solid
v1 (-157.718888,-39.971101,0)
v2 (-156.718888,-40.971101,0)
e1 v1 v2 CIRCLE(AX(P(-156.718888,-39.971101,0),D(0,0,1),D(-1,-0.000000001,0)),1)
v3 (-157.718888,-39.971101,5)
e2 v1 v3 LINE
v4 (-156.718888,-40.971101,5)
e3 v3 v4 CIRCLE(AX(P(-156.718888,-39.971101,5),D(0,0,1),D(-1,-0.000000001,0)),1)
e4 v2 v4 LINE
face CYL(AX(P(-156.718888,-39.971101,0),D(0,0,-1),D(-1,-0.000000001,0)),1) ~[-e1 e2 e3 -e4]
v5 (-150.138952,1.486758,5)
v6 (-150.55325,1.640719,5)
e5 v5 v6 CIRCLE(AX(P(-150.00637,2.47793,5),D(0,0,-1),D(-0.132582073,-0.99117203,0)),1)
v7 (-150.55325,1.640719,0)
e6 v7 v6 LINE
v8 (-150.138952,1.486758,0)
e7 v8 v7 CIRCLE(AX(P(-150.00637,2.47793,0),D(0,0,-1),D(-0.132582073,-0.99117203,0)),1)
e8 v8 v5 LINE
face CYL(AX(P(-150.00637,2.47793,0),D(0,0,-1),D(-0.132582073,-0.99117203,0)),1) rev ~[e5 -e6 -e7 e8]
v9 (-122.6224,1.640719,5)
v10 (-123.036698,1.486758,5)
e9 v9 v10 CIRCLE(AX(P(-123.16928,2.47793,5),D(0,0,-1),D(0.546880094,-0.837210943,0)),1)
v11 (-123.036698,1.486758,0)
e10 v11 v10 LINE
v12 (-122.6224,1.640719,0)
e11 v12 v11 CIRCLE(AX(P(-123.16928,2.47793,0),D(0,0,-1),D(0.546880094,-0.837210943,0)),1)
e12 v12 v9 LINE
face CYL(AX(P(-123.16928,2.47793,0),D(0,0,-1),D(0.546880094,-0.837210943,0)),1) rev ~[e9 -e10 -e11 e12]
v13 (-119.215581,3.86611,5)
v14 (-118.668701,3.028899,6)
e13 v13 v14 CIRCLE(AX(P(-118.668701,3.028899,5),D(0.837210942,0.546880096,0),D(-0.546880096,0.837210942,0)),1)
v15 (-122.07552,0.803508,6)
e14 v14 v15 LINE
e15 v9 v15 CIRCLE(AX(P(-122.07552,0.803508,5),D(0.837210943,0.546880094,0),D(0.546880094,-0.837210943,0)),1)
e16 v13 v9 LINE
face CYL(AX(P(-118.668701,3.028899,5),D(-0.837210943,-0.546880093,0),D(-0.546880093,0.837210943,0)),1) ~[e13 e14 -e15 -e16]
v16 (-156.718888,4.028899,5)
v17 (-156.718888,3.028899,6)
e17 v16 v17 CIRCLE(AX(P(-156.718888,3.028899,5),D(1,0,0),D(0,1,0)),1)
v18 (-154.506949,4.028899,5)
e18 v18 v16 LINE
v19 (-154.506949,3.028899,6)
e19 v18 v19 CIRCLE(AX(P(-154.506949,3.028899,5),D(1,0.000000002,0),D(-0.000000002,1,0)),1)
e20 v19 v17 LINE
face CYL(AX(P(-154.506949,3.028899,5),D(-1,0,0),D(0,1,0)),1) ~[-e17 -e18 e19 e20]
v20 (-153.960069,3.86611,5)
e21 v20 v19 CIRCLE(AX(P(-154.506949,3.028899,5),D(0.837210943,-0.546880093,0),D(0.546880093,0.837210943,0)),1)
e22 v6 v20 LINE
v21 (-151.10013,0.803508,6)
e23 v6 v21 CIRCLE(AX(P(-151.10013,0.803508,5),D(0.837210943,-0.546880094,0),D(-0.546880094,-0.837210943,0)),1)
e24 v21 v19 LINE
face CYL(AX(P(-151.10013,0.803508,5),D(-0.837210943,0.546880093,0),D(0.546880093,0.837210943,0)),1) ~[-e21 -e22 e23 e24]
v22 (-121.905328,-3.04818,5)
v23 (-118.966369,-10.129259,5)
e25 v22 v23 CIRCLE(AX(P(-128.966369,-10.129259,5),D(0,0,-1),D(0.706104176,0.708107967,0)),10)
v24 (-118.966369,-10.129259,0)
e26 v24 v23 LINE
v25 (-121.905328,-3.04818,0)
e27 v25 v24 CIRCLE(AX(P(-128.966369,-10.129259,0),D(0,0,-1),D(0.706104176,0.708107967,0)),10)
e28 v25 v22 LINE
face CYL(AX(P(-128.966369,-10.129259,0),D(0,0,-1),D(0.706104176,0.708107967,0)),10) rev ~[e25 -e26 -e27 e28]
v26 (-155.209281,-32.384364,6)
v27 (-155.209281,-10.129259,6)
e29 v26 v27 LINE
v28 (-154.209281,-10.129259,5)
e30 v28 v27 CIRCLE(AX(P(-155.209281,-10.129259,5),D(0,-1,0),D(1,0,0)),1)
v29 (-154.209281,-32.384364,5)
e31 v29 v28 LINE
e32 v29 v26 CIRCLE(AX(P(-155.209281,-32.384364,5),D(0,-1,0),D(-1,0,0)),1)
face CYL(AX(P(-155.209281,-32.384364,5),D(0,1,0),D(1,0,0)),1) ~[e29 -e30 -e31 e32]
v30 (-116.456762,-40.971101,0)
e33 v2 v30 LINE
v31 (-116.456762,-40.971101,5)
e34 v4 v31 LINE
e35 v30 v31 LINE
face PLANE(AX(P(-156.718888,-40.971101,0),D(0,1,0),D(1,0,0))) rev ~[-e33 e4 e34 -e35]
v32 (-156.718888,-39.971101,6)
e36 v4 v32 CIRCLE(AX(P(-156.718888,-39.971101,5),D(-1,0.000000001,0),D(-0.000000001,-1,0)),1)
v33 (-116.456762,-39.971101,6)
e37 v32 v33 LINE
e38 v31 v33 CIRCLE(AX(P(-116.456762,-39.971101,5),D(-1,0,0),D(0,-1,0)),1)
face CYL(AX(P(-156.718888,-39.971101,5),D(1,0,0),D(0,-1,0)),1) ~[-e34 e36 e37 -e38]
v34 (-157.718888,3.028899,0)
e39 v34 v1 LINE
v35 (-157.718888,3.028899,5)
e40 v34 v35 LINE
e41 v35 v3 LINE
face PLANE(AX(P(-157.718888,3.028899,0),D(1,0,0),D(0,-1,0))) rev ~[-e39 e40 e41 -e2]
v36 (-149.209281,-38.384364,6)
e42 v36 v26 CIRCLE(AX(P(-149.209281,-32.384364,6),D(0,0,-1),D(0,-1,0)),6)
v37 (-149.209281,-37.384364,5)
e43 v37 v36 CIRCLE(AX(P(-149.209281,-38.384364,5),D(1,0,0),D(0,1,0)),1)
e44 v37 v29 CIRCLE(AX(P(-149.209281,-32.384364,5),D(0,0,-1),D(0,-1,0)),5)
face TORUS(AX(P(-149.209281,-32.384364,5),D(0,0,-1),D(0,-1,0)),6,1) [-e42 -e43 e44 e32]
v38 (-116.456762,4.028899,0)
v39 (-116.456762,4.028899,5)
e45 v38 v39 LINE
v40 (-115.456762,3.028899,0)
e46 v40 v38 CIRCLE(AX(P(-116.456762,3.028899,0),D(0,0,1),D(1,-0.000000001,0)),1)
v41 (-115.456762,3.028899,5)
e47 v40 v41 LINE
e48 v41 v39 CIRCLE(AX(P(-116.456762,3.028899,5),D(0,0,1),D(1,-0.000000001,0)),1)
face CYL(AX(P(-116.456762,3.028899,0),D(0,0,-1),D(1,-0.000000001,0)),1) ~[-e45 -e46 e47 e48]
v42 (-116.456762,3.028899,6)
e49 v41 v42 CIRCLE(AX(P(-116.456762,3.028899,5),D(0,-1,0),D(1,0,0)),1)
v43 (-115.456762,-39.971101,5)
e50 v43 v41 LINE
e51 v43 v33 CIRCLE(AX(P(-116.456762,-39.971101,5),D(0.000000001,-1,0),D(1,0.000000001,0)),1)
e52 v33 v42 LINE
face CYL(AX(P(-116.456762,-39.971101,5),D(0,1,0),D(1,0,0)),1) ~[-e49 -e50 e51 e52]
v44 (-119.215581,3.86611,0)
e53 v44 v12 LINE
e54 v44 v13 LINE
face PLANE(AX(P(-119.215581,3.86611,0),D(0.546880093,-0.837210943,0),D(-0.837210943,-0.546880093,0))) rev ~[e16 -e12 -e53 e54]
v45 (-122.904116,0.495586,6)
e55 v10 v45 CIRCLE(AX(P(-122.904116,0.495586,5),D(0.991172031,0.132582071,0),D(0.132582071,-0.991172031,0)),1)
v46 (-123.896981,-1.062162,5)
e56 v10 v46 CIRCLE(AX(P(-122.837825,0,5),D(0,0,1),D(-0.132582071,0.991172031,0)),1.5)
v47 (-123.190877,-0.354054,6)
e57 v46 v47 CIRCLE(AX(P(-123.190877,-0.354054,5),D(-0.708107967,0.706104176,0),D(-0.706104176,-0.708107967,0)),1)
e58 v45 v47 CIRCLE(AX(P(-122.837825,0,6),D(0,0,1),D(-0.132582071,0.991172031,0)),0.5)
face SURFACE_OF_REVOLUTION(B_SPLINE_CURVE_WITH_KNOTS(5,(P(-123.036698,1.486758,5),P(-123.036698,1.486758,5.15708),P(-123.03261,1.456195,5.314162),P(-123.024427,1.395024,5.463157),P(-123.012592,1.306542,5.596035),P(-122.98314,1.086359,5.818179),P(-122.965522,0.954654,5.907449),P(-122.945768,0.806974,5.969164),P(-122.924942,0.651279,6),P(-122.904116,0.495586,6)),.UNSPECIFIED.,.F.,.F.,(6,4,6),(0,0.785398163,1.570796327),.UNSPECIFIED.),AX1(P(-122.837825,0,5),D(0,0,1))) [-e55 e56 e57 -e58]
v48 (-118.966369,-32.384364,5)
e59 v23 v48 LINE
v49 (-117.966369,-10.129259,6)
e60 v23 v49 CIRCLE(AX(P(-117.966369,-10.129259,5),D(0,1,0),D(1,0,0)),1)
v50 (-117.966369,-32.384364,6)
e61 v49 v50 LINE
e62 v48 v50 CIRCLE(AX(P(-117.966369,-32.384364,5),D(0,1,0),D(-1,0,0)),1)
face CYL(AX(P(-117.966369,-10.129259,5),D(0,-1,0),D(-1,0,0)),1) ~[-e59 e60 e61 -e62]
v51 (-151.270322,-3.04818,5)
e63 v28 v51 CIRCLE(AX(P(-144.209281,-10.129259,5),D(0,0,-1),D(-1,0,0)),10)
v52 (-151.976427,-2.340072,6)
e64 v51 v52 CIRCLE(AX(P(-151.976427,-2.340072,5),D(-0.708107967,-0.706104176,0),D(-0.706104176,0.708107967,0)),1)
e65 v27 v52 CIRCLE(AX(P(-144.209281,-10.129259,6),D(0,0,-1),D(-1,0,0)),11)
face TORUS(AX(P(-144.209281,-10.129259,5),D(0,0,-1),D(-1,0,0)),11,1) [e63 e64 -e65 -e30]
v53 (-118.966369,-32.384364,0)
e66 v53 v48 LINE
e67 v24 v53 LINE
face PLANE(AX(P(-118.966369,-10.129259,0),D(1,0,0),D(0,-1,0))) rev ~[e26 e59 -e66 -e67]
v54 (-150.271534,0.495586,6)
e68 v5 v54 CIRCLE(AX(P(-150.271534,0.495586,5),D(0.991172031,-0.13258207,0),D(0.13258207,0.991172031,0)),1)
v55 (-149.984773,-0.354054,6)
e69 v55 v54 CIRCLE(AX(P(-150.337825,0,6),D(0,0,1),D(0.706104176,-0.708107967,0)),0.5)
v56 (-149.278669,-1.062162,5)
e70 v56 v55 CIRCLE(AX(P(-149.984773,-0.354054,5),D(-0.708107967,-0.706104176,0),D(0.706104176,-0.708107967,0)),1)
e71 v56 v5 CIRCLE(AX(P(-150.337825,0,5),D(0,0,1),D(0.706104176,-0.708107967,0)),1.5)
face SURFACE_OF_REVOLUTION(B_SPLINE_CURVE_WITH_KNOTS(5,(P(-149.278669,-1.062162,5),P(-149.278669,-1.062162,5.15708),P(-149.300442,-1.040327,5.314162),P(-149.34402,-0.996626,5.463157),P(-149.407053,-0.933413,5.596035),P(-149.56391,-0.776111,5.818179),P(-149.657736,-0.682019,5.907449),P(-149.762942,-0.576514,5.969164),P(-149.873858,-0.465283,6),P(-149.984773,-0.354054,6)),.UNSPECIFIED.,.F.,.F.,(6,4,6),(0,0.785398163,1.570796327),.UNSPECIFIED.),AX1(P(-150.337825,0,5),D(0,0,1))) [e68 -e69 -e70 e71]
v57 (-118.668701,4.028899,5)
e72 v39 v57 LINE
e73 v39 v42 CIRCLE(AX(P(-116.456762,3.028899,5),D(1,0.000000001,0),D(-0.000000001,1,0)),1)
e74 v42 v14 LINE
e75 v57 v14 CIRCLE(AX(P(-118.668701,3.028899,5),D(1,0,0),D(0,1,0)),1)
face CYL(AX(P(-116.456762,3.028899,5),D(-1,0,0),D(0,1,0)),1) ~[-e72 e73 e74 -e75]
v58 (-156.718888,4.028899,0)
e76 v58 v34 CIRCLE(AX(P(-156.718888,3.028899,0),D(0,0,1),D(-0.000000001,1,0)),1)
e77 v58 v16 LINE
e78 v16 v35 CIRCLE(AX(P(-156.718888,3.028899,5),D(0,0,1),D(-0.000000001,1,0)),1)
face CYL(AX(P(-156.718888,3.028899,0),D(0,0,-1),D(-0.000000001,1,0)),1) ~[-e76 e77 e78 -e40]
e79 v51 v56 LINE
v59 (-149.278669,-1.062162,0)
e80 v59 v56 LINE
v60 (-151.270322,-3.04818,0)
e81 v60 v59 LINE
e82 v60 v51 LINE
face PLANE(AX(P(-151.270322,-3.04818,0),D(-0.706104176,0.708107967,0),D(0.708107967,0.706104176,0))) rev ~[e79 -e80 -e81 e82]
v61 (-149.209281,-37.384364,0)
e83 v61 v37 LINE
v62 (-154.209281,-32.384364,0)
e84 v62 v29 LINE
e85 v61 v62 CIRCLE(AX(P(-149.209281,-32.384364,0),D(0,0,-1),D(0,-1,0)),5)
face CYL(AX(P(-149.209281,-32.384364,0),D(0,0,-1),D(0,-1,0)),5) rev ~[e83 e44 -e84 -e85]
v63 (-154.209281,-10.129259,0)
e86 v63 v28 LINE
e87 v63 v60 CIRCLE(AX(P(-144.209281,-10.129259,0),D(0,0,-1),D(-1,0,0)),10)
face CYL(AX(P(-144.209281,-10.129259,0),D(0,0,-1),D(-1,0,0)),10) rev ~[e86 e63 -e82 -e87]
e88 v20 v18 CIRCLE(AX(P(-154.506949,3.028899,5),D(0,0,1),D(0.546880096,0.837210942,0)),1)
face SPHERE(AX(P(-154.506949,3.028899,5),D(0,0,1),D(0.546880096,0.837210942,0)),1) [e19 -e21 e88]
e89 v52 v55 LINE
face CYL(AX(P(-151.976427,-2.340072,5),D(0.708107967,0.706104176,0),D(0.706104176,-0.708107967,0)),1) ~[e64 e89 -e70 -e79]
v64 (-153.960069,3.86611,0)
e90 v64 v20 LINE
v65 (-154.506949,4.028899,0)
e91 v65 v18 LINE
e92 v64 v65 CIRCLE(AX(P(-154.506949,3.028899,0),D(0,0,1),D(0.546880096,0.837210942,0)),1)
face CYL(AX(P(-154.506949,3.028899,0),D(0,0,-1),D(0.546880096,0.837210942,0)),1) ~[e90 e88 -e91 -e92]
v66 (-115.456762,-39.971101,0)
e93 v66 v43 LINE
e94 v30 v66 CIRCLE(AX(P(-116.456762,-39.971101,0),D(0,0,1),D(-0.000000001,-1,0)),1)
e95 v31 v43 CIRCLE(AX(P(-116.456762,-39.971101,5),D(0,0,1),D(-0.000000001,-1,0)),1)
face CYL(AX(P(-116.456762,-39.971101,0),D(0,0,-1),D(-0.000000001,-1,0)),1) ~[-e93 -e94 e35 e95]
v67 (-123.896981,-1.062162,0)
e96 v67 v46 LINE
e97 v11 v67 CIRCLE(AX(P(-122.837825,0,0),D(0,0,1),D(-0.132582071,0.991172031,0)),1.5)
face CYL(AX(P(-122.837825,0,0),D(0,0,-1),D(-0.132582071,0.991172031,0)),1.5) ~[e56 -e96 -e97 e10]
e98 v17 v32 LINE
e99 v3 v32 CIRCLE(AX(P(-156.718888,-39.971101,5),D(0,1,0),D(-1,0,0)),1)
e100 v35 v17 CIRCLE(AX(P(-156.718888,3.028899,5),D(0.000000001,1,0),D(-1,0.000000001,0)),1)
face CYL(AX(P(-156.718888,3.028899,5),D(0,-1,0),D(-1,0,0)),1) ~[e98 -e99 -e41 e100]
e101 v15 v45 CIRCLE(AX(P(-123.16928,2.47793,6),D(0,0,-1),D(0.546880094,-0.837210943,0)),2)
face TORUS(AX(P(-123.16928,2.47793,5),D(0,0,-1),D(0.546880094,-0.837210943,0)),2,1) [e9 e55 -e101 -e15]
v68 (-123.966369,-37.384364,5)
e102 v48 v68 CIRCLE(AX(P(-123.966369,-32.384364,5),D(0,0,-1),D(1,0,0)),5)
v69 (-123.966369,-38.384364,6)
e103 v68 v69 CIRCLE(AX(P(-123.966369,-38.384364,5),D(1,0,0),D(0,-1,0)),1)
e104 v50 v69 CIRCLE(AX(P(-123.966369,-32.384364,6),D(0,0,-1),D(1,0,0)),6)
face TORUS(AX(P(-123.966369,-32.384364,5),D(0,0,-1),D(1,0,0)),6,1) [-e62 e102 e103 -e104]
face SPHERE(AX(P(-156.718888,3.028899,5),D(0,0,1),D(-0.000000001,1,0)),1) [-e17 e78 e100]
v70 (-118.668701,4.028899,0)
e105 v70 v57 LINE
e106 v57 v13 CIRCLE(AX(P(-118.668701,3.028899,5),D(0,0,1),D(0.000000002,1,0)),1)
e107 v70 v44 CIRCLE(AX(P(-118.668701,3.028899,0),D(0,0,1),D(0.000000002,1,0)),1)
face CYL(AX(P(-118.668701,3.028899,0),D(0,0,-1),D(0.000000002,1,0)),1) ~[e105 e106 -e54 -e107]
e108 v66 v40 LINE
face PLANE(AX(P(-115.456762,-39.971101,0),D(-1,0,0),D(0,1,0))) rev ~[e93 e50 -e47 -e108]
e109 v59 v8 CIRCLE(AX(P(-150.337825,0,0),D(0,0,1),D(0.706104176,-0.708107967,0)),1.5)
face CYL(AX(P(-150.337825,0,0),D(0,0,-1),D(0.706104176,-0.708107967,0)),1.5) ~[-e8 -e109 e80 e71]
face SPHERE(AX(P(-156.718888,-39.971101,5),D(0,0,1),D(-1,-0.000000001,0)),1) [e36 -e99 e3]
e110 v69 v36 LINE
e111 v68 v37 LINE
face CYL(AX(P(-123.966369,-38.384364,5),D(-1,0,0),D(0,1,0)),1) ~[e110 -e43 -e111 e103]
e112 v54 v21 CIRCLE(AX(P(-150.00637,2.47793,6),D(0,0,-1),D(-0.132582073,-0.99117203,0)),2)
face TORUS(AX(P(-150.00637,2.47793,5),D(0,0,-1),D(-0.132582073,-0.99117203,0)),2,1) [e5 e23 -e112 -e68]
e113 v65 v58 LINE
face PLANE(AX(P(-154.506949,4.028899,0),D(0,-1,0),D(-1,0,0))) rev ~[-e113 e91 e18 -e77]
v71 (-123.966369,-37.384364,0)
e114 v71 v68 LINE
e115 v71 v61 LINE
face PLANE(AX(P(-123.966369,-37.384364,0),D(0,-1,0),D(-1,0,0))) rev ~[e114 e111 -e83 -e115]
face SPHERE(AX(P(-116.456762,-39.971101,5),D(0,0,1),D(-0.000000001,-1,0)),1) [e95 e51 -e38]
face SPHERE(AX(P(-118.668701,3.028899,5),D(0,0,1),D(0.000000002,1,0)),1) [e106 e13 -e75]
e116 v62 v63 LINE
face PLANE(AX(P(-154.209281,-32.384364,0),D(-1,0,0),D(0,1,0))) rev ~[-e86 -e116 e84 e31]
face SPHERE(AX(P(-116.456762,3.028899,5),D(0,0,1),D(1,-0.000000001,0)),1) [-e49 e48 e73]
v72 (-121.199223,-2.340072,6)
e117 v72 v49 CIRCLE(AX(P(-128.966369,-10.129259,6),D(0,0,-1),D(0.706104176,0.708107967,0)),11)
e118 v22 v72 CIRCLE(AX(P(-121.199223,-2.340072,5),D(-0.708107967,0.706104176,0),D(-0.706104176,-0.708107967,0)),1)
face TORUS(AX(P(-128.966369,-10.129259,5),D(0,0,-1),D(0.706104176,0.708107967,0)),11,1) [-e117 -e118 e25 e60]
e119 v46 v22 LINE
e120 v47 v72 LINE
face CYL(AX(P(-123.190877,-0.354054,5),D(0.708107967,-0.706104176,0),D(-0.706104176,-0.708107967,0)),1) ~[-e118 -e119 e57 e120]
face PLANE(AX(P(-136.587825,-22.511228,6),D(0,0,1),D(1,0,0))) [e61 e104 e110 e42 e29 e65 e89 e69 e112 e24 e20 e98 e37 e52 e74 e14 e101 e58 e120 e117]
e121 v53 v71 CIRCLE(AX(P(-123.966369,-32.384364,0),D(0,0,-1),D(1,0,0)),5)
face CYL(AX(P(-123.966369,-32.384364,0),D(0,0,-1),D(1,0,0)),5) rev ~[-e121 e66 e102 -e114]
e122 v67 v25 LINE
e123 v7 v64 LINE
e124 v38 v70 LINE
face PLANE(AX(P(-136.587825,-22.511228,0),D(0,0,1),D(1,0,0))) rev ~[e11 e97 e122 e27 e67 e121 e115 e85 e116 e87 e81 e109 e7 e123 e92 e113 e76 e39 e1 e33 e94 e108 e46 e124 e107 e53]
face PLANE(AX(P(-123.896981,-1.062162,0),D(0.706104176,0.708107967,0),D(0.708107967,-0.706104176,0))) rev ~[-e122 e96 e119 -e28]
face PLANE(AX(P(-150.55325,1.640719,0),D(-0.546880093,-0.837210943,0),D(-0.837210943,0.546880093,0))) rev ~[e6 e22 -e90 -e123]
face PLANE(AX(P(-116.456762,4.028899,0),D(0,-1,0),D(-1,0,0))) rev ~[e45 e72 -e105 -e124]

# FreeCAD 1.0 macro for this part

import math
import FreeCAD as App
import Part
import Sketcher


def edges_at(feature, points):
    """Names of the edges that pass closest to the given points."""
    edges = feature.Shape.Edges
    near = lambda p: min(range(len(edges)), key=lambda i: edges[i].distToShape(Part.Vertex(*p))[0])
    return sorted({f"Edge{near(p) + 1}" for p in points})

doc = App.newDocument("Part")
params = doc.addObject("Spreadsheet::Sheet", "Params")
for row, (alias, value) in enumerate([
    ("sketch1_radius", "1 mm"),
    ("sketch1_radius2", "10 mm"),
    ("sketch1_radius3", "5 mm"),
    ("sketch1_radius4", "1.5 mm"),
    ("sketch1_height", "43 mm"),
    ("pad1_length", "6 mm"),
    ("fillet_radius", "1 mm"),
], start=1):
    params.set(f"A{row}", alias)
    params.set(f"B{row}", "=" + value)
    params.setAlias(f"B{row}", alias)

body = doc.addObject("PartDesign::Body", "Body")

sketch1 = doc.addObject("Sketcher::SketchObject", "Sketch")
body.addObject(sketch1)
sketch1.AttachmentSupport = (doc.XY_Plane, [""])
sketch1.MapMode = "FlatFace"
sketch1.addGeometry([
    Part.ArcOfCircle(Part.Circle(App.Vector(-156.718888, -39.971101, 0), App.Vector(0, 0, 1), 1), math.radians(-180), math.radians(-90)),
    Part.LineSegment(App.Vector(-156.718888, -40.971101, 0), App.Vector(-116.456762, -40.971101, 0)),
    Part.ArcOfCircle(Part.Circle(App.Vector(-116.456762, -39.971101, 0), App.Vector(0, 0, 1), 1), math.radians(-90), math.radians(0)),
    Part.LineSegment(App.Vector(-115.456762, -39.971101, 0), App.Vector(-115.456762, 3.028899, 0)),
    Part.ArcOfCircle(Part.Circle(App.Vector(-116.456762, 3.028899, 0), App.Vector(0, 0, 1), 1), math.radians(0), math.radians(90)),
    Part.LineSegment(App.Vector(-116.456762, 4.028899, 0), App.Vector(-118.668701, 4.028899, 0)),
    Part.ArcOfCircle(Part.Circle(App.Vector(-118.668701, 3.028899, 0), App.Vector(0, 0, 1), 1), math.radians(90), math.radians(123.153237)),
    Part.LineSegment(App.Vector(-119.215581, 3.86611, 0), App.Vector(-122.6224, 1.640719, 0)),
    Part.ArcOfCircle(Part.Circle(App.Vector(-123.16928, 2.47793, 0), App.Vector(0, 0, 1), 1), math.radians(-82.381174), math.radians(-56.846763)),
    Part.ArcOfCircle(Part.Circle(App.Vector(-122.837825, 0, 0), App.Vector(0, 0, 1), 1.5), math.radians(97.618826), math.radians(225.081182)),
    Part.LineSegment(App.Vector(-123.896981, -1.062162, 0), App.Vector(-121.905328, -3.04818, 0)),
    Part.ArcOfCircle(Part.Circle(App.Vector(-128.966369, -10.129259, 0), App.Vector(0, 0, 1), 10), math.radians(0), math.radians(45.081182)),
    Part.LineSegment(App.Vector(-118.966369, -10.129259, 0), App.Vector(-118.966369, -32.384364, 0)),
    Part.ArcOfCircle(Part.Circle(App.Vector(-123.966369, -32.384364, 0), App.Vector(0, 0, 1), 5), math.radians(-90), math.radians(0)),
    Part.LineSegment(App.Vector(-123.966369, -37.384364, 0), App.Vector(-149.209281, -37.384364, 0)),
    Part.ArcOfCircle(Part.Circle(App.Vector(-149.209281, -32.384364, 0), App.Vector(0, 0, 1), 5), math.radians(-180), math.radians(-90)),
    Part.LineSegment(App.Vector(-154.209281, -32.384364, 0), App.Vector(-154.209281, -10.129259, 0)),
    Part.ArcOfCircle(Part.Circle(App.Vector(-144.209281, -10.129259, 0), App.Vector(0, 0, 1), 10), math.radians(134.918818), math.radians(180)),
    Part.LineSegment(App.Vector(-151.270322, -3.04818, 0), App.Vector(-149.278669, -1.062162, 0)),
    Part.ArcOfCircle(Part.Circle(App.Vector(-150.337825, 0, 0), App.Vector(0, 0, 1), 1.5), math.radians(-45.081182), math.radians(82.381174)),
    Part.ArcOfCircle(Part.Circle(App.Vector(-150.00637, 2.47793, 0), App.Vector(0, 0, 1), 1), math.radians(-123.153237), math.radians(-97.618826)),
    Part.LineSegment(App.Vector(-150.55325, 1.640719, 0), App.Vector(-153.960069, 3.86611, 0)),
    Part.ArcOfCircle(Part.Circle(App.Vector(-154.506949, 3.028899, 0), App.Vector(0, 0, 1), 1), math.radians(56.846763), math.radians(90)),
    Part.LineSegment(App.Vector(-154.506949, 4.028899, 0), App.Vector(-156.718888, 4.028899, 0)),
    Part.ArcOfCircle(Part.Circle(App.Vector(-156.718888, 3.028899, 0), App.Vector(0, 0, 1), 1), math.radians(90), math.radians(180)),
    Part.LineSegment(App.Vector(-157.718888, 3.028899, 0), App.Vector(-157.718888, -39.971101, 0)),
], False)
sketch1.addConstraint([
    Sketcher.Constraint("Tangent", 0, 2, 1, 1),
    Sketcher.Constraint("Tangent", 1, 2, 2, 1),
    Sketcher.Constraint("Tangent", 2, 2, 3, 1),
    Sketcher.Constraint("Tangent", 3, 2, 4, 1),
    Sketcher.Constraint("Tangent", 4, 2, 5, 1),
    Sketcher.Constraint("Tangent", 5, 2, 6, 1),
    Sketcher.Constraint("Tangent", 6, 2, 7, 1),
    Sketcher.Constraint("Tangent", 7, 2, 8, 2),
    Sketcher.Constraint("Tangent", 8, 1, 9, 1),
    Sketcher.Constraint("Tangent", 9, 2, 10, 1),
    Sketcher.Constraint("Tangent", 10, 2, 11, 2),
    Sketcher.Constraint("Tangent", 11, 1, 12, 1),
    Sketcher.Constraint("Tangent", 12, 2, 13, 2),
    Sketcher.Constraint("Tangent", 13, 1, 14, 1),
    Sketcher.Constraint("Tangent", 14, 2, 15, 2),
    Sketcher.Constraint("Tangent", 15, 1, 16, 1),
    Sketcher.Constraint("Tangent", 16, 2, 17, 2),
    Sketcher.Constraint("Tangent", 17, 1, 18, 1),
    Sketcher.Constraint("Tangent", 18, 2, 19, 1),
    Sketcher.Constraint("Tangent", 19, 2, 20, 2),
    Sketcher.Constraint("Tangent", 20, 1, 21, 1),
    Sketcher.Constraint("Tangent", 21, 2, 22, 1),
    Sketcher.Constraint("Tangent", 22, 2, 23, 1),
    Sketcher.Constraint("Tangent", 23, 2, 24, 1),
    Sketcher.Constraint("Tangent", 24, 2, 25, 1),
    Sketcher.Constraint("Tangent", 25, 2, 0, 1),
    Sketcher.Constraint("Horizontal", 1),
    Sketcher.Constraint("Vertical", 3),
    Sketcher.Constraint("Horizontal", 5),
    Sketcher.Constraint("Vertical", 12),
    Sketcher.Constraint("Horizontal", 14),
    Sketcher.Constraint("Vertical", 16),
    Sketcher.Constraint("Horizontal", 23),
    Sketcher.Constraint("Vertical", 25),
    Sketcher.Constraint("Equal", 0, 2),
    Sketcher.Constraint("Equal", 2, 4),
    Sketcher.Constraint("Equal", 4, 6),
    Sketcher.Constraint("Equal", 6, 8),
    Sketcher.Constraint("Equal", 13, 15),
    Sketcher.Constraint("Equal", 11, 17),
    Sketcher.Constraint("Equal", 9, 19),
    Sketcher.Constraint("Equal", 8, 20),
    Sketcher.Constraint("Equal", 20, 22),
    Sketcher.Constraint("Equal", 22, 24),
    Sketcher.Constraint("PointOnObject", 9, 3, -1),
    Sketcher.Constraint("PointOnObject", 19, 3, -1),
    Sketcher.Constraint("Horizontal", 11, 3, 17, 3),
    Sketcher.Constraint("Horizontal", 8, 3, 20, 3),
    Sketcher.Constraint("Horizontal", 6, 3, 22, 3),
    Sketcher.Constraint("Horizontal", 10, 2, 17, 1),
    Sketcher.Constraint("Horizontal", 7, 2, 20, 1),
    Sketcher.Constraint("Equal", 5, 23),
    Sketcher.Constraint("Radius", 0, 1.0),
    Sketcher.Constraint("Radius", 11, 10.0),
    Sketcher.Constraint("Radius", 13, 5.0),
    Sketcher.Constraint("Radius", 9, 1.5),
    Sketcher.Constraint("DistanceY", 3, 1, 3, 2, 43.0),
    Sketcher.Constraint("DistanceX", 19, 3, 9, 3, 27.5),
    Sketcher.Constraint("DistanceX", 17, 3, 8, 3, 21.04),
    Sketcher.Constraint("DistanceX", 5, 2, 5, 1, 2.211938),
    Sketcher.Constraint("DistanceX", 14, 2, 14, 1, 25.242911),
    Sketcher.Constraint("DistanceY", 0, 3, -1, 1, 39.971101),
    Sketcher.Constraint("DistanceX", 6, 3, -1, 1, 118.668701),
    Sketcher.Constraint("DistanceX", 7, 2, -1, 1, 122.6224),
    Sketcher.Constraint("DistanceX", 9, 2, 8, 3, 0.727701),
    Sketcher.Constraint("DistanceY", 12, 2, 12, 1, 22.255105),
])
sketch1.setExpression("Constraints[52]", "Params.sketch1_radius")
sketch1.setExpression("Constraints[53]", "Params.sketch1_radius2")
sketch1.setExpression("Constraints[54]", "Params.sketch1_radius3")
sketch1.setExpression("Constraints[55]", "Params.sketch1_radius4")
sketch1.setExpression("Constraints[56]", "Params.sketch1_height")
pad1 = doc.addObject("PartDesign::Pad", "Pad")
body.addObject(pad1)
pad1.Profile = sketch1
pad1.setExpression("Length", "Params.pad1_length")
doc.recompute()

fillet = doc.addObject("PartDesign::Fillet", "Fillet")
body.addObject(fillet)
fillet.Base = (pad1, edges_at(pad1, [
    (-122.821, 1.541, 6),
    (-124.259, 0.48, 6),
    (-154.209, -21.257, 6),
    (-122.901, -2.055, 6),
    (-119.73, -6.296, 6),
    (-118.966, -21.257, 6),
    (-120.431, -35.92, 6),
    (-136.588, -37.384, 6),
    (-153.445, -6.296, 6),
    (-150.274, -2.055, 6),
    (-148.917, 0.48, 6),
    (-150.355, 1.541, 6),
    (-152.257, 2.753, 6),
    (-154.222, 3.987, 6),
    (-155.613, 4.029, 6),
    (-157.426, 3.736, 6),
    (-157.719, -18.471, 6),
    (-152.745, -35.92, 6),
    (-157.426, -40.678, 6),
    (-136.588, -40.971, 6),
    (-115.75, -40.678, 6),
    (-115.457, -18.471, 6),
    (-115.75, 3.736, 6),
    (-117.563, 4.029, 6),
    (-118.954, 3.987, 6),
    (-120.919, 2.753, 6),
]))
fillet.setExpression("Radius", "Params.fillet_radius")

doc.recompute()
